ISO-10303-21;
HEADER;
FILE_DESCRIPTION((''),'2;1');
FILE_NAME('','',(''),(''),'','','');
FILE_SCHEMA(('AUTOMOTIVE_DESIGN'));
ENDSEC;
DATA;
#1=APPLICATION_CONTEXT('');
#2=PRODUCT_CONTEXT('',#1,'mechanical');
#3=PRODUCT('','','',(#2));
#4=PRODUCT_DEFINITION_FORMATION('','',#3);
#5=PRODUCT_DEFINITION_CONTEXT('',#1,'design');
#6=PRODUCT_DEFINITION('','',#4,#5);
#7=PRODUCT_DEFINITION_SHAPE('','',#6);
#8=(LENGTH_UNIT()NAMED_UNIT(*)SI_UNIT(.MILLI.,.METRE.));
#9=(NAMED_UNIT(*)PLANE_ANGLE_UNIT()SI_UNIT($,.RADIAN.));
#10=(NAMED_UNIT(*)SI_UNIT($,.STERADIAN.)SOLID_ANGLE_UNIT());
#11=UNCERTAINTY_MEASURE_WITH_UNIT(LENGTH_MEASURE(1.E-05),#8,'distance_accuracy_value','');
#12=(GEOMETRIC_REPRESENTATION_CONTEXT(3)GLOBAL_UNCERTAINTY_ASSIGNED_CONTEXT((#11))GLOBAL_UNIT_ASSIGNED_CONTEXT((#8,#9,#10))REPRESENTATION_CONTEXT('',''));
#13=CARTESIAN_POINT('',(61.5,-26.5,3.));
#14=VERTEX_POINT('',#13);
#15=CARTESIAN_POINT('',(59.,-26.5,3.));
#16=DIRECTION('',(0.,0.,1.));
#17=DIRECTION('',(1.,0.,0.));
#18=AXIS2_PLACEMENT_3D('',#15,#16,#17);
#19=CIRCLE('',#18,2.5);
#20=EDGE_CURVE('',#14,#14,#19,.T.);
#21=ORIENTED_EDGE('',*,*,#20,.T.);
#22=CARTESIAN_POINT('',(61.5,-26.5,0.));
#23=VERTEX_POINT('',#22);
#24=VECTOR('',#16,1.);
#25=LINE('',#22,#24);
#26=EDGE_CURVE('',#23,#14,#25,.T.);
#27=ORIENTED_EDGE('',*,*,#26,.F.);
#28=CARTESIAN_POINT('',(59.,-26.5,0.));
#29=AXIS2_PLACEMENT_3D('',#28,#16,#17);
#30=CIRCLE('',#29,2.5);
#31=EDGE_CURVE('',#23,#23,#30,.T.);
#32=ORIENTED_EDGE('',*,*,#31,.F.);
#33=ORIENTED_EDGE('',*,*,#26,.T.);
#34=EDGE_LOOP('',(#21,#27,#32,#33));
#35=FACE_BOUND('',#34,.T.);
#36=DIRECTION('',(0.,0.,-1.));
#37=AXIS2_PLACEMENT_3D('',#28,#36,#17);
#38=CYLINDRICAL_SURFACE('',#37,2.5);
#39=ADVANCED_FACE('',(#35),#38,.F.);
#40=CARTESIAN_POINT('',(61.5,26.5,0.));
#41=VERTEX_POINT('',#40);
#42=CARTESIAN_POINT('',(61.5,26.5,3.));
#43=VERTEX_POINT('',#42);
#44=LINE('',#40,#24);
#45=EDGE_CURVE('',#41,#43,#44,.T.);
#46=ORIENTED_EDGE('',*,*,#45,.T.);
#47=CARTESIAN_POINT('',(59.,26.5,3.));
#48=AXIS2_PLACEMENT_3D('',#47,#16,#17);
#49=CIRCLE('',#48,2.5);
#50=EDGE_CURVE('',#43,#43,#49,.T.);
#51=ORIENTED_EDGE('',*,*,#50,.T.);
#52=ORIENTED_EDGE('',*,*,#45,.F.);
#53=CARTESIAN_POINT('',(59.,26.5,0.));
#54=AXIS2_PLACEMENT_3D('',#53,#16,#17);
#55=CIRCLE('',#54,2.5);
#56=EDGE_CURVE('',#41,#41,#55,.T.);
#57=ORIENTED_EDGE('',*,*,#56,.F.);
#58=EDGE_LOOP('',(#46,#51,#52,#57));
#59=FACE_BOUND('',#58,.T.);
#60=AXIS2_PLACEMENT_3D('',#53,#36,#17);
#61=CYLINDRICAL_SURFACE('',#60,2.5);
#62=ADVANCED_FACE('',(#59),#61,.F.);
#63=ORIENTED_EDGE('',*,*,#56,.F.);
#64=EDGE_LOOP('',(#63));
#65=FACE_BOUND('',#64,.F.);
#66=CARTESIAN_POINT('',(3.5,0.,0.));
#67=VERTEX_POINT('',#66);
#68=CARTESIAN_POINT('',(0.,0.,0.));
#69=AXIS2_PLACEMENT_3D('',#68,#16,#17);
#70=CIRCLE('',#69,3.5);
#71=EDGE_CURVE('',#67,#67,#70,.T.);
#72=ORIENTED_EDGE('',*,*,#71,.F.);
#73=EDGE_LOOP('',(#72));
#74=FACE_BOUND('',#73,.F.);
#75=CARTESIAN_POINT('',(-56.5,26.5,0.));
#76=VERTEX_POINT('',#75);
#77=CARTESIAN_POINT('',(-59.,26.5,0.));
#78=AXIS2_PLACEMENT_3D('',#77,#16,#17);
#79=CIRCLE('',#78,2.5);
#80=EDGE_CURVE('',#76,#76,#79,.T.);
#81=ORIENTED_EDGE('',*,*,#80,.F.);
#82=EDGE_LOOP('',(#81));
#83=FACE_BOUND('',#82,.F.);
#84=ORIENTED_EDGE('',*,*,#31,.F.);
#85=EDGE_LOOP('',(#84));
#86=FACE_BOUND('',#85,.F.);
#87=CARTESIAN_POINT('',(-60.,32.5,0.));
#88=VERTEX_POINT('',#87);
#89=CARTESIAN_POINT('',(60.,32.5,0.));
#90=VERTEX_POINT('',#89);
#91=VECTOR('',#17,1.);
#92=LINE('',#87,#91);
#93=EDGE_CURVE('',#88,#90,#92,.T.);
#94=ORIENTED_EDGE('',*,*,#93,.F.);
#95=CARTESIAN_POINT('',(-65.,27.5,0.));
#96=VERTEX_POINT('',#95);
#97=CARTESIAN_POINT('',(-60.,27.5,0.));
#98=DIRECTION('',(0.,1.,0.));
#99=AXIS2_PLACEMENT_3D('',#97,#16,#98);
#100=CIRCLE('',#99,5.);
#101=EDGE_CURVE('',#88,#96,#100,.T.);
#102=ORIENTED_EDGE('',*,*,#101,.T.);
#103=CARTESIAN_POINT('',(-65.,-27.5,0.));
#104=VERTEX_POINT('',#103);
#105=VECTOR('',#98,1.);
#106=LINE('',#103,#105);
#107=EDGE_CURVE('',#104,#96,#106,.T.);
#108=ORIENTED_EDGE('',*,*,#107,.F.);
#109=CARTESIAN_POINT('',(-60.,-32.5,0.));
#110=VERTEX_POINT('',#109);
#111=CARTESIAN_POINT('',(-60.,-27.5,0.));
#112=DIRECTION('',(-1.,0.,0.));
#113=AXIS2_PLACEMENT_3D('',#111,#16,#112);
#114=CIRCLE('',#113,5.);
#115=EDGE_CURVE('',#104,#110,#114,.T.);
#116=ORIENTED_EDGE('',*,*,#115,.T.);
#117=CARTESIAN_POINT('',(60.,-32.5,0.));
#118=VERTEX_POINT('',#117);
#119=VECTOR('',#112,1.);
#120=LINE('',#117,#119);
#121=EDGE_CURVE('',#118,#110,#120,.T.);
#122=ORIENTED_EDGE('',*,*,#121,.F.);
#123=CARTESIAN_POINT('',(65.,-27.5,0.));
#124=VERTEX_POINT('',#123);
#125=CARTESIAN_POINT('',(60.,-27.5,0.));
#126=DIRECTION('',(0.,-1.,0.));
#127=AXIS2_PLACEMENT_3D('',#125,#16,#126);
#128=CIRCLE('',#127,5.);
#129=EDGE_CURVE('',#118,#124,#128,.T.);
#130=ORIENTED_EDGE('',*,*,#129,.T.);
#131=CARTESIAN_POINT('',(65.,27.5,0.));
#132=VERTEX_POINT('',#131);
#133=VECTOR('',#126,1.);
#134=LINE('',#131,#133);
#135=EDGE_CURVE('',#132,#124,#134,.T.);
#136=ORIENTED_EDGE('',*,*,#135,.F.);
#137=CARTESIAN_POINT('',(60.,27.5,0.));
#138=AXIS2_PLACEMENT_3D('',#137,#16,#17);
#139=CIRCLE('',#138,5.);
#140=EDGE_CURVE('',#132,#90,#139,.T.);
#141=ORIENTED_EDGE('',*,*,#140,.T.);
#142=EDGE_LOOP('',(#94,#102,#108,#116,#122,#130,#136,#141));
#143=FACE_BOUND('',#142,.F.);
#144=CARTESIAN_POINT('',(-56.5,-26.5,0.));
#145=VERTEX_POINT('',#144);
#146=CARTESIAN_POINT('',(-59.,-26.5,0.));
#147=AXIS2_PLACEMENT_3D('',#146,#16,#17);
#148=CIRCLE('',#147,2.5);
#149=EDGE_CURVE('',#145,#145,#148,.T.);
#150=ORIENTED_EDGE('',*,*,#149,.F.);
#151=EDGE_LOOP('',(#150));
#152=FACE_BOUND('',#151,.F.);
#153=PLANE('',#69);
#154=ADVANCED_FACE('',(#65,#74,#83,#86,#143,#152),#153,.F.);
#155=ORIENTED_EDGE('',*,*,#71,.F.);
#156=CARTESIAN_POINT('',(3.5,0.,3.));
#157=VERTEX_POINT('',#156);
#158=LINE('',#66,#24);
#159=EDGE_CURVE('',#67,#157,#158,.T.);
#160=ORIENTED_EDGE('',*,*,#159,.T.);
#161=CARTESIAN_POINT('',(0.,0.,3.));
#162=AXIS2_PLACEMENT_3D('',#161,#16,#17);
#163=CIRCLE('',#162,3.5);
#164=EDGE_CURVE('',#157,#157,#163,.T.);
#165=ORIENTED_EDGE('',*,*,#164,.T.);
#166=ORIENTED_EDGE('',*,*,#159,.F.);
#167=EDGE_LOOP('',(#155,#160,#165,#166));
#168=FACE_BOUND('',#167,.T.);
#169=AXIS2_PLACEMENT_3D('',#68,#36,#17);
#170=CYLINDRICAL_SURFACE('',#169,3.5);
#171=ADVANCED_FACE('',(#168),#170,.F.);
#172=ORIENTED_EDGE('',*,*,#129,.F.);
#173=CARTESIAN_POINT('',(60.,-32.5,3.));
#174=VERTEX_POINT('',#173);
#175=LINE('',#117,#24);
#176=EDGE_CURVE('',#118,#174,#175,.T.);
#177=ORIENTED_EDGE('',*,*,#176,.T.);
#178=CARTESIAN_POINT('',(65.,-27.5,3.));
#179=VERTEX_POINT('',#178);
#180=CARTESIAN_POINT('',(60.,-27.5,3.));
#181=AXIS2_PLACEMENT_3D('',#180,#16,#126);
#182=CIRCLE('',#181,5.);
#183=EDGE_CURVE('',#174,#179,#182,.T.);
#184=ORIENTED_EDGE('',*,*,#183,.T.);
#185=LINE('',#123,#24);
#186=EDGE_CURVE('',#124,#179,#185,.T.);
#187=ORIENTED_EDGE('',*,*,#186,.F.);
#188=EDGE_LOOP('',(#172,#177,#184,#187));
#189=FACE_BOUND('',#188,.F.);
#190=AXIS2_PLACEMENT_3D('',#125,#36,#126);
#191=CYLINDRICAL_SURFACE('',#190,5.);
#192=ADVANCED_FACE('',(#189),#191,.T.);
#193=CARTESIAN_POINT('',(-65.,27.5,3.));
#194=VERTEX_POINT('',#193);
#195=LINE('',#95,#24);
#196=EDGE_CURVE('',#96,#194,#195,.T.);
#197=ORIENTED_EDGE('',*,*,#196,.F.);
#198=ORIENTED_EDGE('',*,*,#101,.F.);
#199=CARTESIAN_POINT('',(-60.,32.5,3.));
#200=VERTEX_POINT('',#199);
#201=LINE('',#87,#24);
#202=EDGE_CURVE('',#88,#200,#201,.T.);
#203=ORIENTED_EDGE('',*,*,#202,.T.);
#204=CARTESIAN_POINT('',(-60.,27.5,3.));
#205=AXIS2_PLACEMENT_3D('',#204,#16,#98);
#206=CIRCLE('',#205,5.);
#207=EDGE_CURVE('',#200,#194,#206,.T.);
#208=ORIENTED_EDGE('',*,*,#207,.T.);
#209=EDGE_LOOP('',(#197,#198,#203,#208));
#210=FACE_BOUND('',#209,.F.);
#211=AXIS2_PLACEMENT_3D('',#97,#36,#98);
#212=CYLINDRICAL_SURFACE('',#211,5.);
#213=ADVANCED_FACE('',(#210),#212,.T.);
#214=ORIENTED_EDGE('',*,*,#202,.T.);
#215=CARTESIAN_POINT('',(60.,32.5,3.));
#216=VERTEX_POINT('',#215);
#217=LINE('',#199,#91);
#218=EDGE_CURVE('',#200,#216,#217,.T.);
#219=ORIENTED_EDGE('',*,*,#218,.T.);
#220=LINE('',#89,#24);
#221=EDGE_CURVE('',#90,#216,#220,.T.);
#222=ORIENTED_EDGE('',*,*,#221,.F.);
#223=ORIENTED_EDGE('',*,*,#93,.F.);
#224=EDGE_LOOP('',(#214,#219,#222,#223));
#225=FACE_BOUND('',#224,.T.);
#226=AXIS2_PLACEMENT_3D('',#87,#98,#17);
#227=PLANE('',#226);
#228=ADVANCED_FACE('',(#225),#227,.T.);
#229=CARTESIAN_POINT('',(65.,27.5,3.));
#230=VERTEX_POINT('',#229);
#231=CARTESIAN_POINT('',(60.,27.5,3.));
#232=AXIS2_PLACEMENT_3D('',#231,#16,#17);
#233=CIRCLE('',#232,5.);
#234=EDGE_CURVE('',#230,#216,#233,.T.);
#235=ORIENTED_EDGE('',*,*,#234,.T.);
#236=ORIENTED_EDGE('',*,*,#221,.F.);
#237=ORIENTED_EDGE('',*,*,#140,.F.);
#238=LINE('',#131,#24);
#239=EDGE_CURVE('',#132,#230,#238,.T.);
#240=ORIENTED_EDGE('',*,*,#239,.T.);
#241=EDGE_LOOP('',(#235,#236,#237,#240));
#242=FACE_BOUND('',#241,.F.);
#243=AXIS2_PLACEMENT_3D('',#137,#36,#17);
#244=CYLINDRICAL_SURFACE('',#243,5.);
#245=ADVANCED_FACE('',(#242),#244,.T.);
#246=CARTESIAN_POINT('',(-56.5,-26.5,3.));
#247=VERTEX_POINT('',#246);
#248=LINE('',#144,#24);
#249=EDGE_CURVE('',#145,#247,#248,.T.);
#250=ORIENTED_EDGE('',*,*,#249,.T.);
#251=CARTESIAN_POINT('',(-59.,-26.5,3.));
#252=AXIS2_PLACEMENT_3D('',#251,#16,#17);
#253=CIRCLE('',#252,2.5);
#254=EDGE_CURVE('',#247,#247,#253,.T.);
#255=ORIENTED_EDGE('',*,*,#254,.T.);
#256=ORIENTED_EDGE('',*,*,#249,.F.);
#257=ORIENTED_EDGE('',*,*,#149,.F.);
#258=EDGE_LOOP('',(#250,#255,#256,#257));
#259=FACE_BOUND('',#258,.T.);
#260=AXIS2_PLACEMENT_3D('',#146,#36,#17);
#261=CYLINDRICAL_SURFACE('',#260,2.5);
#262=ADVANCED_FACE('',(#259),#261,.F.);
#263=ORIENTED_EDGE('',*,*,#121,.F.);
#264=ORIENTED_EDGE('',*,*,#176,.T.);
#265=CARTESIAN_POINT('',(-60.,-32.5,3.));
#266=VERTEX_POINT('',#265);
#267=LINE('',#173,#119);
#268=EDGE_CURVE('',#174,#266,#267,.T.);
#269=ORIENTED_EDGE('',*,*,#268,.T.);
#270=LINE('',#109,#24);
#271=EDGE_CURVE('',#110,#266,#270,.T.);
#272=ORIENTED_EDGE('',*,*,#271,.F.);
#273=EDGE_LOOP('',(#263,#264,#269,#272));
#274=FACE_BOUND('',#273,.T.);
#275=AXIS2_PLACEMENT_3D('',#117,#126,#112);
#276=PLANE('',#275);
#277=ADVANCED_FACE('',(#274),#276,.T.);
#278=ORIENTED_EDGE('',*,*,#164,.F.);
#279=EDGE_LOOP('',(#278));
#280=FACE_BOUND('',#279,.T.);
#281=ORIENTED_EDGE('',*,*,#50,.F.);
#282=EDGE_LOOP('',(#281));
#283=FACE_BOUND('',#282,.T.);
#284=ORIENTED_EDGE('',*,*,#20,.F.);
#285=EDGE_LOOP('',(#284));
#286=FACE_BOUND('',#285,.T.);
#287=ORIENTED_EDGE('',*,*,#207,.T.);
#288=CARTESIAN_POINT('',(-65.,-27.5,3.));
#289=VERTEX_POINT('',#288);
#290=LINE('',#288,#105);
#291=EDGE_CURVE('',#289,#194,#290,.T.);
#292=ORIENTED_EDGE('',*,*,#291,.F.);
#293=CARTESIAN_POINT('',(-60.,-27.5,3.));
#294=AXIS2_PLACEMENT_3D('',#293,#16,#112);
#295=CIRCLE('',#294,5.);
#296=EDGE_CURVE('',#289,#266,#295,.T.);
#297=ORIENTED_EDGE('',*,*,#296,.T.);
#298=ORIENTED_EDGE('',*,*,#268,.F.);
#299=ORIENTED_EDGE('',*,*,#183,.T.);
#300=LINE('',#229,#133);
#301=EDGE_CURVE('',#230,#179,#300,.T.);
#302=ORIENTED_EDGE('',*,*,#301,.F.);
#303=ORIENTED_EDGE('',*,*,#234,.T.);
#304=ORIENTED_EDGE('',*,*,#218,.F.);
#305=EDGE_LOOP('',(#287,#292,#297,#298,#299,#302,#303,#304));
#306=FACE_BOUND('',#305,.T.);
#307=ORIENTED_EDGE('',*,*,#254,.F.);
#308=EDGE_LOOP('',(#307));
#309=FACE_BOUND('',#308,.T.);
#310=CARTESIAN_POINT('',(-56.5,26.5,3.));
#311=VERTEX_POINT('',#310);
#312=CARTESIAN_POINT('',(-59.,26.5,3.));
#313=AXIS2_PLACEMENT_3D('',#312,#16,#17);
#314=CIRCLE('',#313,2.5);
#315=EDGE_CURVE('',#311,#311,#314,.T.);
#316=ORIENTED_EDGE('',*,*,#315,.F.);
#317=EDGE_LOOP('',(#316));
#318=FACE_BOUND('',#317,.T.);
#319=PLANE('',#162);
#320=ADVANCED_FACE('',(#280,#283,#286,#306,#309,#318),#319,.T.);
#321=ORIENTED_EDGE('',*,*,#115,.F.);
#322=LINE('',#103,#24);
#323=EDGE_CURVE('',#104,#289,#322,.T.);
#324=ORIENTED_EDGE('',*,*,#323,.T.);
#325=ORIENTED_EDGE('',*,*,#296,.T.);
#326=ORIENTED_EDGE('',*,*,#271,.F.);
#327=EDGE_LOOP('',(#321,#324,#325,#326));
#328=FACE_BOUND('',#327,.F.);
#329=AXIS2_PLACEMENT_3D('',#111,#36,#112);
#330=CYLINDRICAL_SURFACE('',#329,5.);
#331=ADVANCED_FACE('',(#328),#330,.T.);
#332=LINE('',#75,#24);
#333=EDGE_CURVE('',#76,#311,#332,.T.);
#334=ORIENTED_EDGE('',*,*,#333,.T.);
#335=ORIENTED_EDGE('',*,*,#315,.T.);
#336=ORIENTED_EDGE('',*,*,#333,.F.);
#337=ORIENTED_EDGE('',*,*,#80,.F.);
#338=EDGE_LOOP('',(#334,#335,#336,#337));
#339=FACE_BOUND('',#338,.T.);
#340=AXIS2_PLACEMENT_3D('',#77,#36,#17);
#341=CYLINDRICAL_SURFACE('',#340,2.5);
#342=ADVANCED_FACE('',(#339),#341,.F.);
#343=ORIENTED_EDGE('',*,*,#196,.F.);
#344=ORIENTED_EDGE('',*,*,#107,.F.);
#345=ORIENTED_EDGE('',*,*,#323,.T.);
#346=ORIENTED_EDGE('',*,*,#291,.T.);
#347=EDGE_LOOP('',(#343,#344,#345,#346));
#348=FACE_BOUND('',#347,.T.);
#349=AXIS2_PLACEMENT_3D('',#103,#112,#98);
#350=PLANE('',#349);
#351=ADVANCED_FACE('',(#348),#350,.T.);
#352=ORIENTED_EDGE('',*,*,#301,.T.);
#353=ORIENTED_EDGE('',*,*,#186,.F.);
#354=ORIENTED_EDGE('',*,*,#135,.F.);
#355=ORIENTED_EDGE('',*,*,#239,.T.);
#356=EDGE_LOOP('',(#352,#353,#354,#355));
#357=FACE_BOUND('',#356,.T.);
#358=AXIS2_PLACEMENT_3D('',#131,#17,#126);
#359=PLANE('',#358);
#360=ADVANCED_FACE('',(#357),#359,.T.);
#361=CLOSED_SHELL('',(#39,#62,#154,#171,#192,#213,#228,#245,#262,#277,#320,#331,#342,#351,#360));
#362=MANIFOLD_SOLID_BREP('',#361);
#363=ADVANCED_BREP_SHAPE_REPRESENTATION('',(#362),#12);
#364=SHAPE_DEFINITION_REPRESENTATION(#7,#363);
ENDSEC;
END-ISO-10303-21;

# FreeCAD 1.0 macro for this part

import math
import FreeCAD as App
import Part
import Sketcher

V = App.Vector
Q = App.Units.Quantity

doc = App.newDocument("Part")
body = doc.addObject("PartDesign::Body", "Body")

sketch1 = body.newObject("Sketcher::SketchObject", "Sketch")
sketch1.AttachmentSupport = (doc.getObject("XY_Plane"), [""])
sketch1.MapMode = "FlatFace"
sketch1.addGeometry(Part.LineSegment(V(60, 32.5, 0), V(-60, 32.5, 0)), False)
sketch1.addGeometry(Part.ArcOfCircle(Part.Circle(V(-60, 27.5, 0), V(0, 0, 1), 5), math.radians(90), math.radians(180)), False)
sketch1.addGeometry(Part.LineSegment(V(-65, 27.5, 0), V(-65, -27.5, 0)), False)
sketch1.addGeometry(Part.ArcOfCircle(Part.Circle(V(-60, -27.5, 0), V(0, 0, 1), 5), math.radians(180), math.radians(270)), False)
sketch1.addGeometry(Part.LineSegment(V(-60, -32.5, 0), V(60, -32.5, 0)), False)
sketch1.addGeometry(Part.ArcOfCircle(Part.Circle(V(60, -27.5, 0), V(0, 0, 1), 5), math.radians(-90), math.radians(0)), False)
sketch1.addGeometry(Part.LineSegment(V(65, -27.5, 0), V(65, 27.5, 0)), False)
sketch1.addGeometry(Part.ArcOfCircle(Part.Circle(V(60, 27.5, 0), V(0, 0, 1), 5), math.radians(0), math.radians(90)), False)
sketch1.addGeometry(Part.Circle(V(-59, -26.5, 0), V(0, 0, 1), 2.5), False)
sketch1.addGeometry(Part.Circle(V(59, -26.5, 0), V(0, 0, 1), 2.5), False)
sketch1.addGeometry(Part.Circle(V(-59, 26.5, 0), V(0, 0, 1), 2.5), False)
sketch1.addGeometry(Part.Circle(V(0, 0, 0), V(0, 0, 1), 3.5), False)
sketch1.addGeometry(Part.Circle(V(59, 26.5, 0), V(0, 0, 1), 2.5), False)
sketch1.addConstraint(Sketcher.Constraint("Tangent", 0, 2, 1, 1))
sketch1.addConstraint(Sketcher.Constraint("Tangent", 1, 2, 2, 1))
sketch1.addConstraint(Sketcher.Constraint("Tangent", 2, 2, 3, 1))
sketch1.addConstraint(Sketcher.Constraint("Tangent", 3, 2, 4, 1))
sketch1.addConstraint(Sketcher.Constraint("Tangent", 4, 2, 5, 1))
sketch1.addConstraint(Sketcher.Constraint("Tangent", 5, 2, 6, 1))
sketch1.addConstraint(Sketcher.Constraint("Tangent", 6, 2, 7, 1))
sketch1.addConstraint(Sketcher.Constraint("Tangent", 7, 2, 0, 1))
sketch1.addConstraint(Sketcher.Constraint("Horizontal", 0))
sketch1.addConstraint(Sketcher.Constraint("Vertical", 2))
sketch1.addConstraint(Sketcher.Constraint("Horizontal", 4))
sketch1.addConstraint(Sketcher.Constraint("Vertical", 6))
sketch1.addConstraint(Sketcher.Constraint("Coincident", 11, 3, -1, 1))
sketch1.addConstraint(Sketcher.Constraint("Equal", 1, 3))
sketch1.addConstraint(Sketcher.Constraint("Equal", 3, 5))
sketch1.addConstraint(Sketcher.Constraint("Equal", 5, 7))
sketch1.addConstraint(Sketcher.Constraint("Equal", 8, 9))
sketch1.addConstraint(Sketcher.Constraint("Equal", 9, 10))
sketch1.addConstraint(Sketcher.Constraint("Equal", 10, 12))
sketch1.addConstraint(Sketcher.Constraint("Symmetric", 1, 3, 5, 3, -1, 1))
sketch1.addConstraint(Sketcher.Constraint("Symmetric", 9, 3, 10, 3, -1, 1))
sketch1.addConstraint(Sketcher.Constraint("Symmetric", 8, 3, 12, 3, -1, 1))
sketch1.addConstraint(Sketcher.Constraint("Symmetric", 8, 3, 9, 3, -2))
sketch1.addConstraint(Sketcher.Constraint("Diameter", 8, Q("5 mm")))
sketch1.addConstraint(Sketcher.Constraint("Diameter", 11, Q("7 mm")))
sketch1.addConstraint(Sketcher.Constraint("Radius", 1, Q("5 mm")))
sketch1.addConstraint(Sketcher.Constraint("DistanceX", 1, 2, -1, 1, Q("65 mm")))
sketch1.addConstraint(Sketcher.Constraint("DistanceY", 10, 3, 0, 2, Q("6 mm")))
sketch1.addConstraint(Sketcher.Constraint("DistanceX", 1, 2, 10, 3, Q("6 mm")))
sketch1.addConstraint(Sketcher.Constraint("DistanceY", -1, 1, 0, 2, Q("32.5 mm")))
pad1 = body.newObject("PartDesign::Pad", "Pad")
pad1.Profile = sketch1
pad1.Length = 3

doc.recompute()
